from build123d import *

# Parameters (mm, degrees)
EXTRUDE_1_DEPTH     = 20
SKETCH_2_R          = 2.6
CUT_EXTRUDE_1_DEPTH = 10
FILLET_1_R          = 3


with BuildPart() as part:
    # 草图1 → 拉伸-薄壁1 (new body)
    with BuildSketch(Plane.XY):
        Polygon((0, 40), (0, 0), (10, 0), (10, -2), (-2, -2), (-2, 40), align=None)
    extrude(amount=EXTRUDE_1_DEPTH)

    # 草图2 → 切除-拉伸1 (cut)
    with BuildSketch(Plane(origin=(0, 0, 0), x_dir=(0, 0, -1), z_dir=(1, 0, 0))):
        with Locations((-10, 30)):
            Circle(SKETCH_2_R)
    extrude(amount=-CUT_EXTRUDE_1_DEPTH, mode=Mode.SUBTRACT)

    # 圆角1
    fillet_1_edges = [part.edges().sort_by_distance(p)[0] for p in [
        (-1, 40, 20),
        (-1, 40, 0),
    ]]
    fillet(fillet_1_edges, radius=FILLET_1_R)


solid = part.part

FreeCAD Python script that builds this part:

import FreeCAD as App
import Part
import Sketcher
from FreeCAD import Vector


def edges_at(feature, points):
    """Names of the edges that pass closest to the given points."""
    edges = feature.Shape.Edges
    near = lambda p: min(range(len(edges)), key=lambda i: edges[i].distToShape(Part.Vertex(*p))[0])
    return sorted({f"Edge{near(p) + 1}" for p in points})

doc = App.newDocument("Part")
body = doc.addObject("PartDesign::Body", "Body")

sketch1 = doc.addObject("Sketcher::SketchObject", "Sketch")
body.addObject(sketch1)
sketch1.AttachmentSupport = (doc.XY_Plane, [""])
sketch1.MapMode = "FlatFace"
sketch1.addGeometry([
    Part.LineSegment(Vector(0, 0, 0), Vector(0, 40, 0)),
    Part.LineSegment(Vector(0, 40, 0), Vector(-2, 40, 0)),
    Part.LineSegment(Vector(-2, 40, 0), Vector(-2, -2, 0)),
    Part.LineSegment(Vector(-2, -2, 0), Vector(10, -2, 0)),
    Part.LineSegment(Vector(10, -2, 0), Vector(10, 0, 0)),
    Part.LineSegment(Vector(10, 0, 0), Vector(0, 0, 0)),
], False)
sketch1.addConstraint([
    Sketcher.Constraint("Coincident", 0, 2, 1, 1),
    Sketcher.Constraint("Coincident", 1, 2, 2, 1),
    Sketcher.Constraint("Coincident", 2, 2, 3, 1),
    Sketcher.Constraint("Coincident", 3, 2, 4, 1),
    Sketcher.Constraint("Coincident", 4, 2, 5, 1),
    Sketcher.Constraint("Coincident", 5, 2, 0, 1),
    Sketcher.Constraint("Vertical", 0),
    Sketcher.Constraint("Horizontal", 1),
    Sketcher.Constraint("Vertical", 2),
    Sketcher.Constraint("Horizontal", 3),
    Sketcher.Constraint("Vertical", 4),
    Sketcher.Constraint("Horizontal", 5),
    Sketcher.Constraint("Coincident", 5, 2, -1, 1),
    Sketcher.Constraint("Equal", 1, 4),
    Sketcher.Constraint("DistanceX", 1, 2, 1, 1, 2.0),
    Sketcher.Constraint("DistanceX", 3, 1, 3, 2, 12.0),
    Sketcher.Constraint("DistanceY", 0, 1, 0, 2, 40.0),
])
pad1 = doc.addObject("PartDesign::Pad", "Pad")
body.addObject(pad1)
pad1.Profile = sketch1
pad1.Length = 20

sketch2 = doc.addObject("Sketcher::SketchObject", "Sketch001")
body.addObject(sketch2)
sketch2.AttachmentSupport = (doc.YZ_Plane, [""])
sketch2.MapMode = "FlatFace"
sketch2.addGeometry(Part.Circle(Vector(30, 10, 0), Vector(0, 0, 1), 2.6), False)
sketch2.addConstraint([
    Sketcher.Constraint("Diameter", 0, 5.2),
    Sketcher.Constraint("DistanceX", -1, 1, 0, 3, 30.0),
    Sketcher.Constraint("DistanceY", -1, 1, 0, 3, 10.0),
])
pocket1 = doc.addObject("PartDesign::Pocket", "Pocket")
body.addObject(pocket1)
pocket1.Profile = sketch2
pocket1.Length = 10
doc.recompute()

fillet = doc.addObject("PartDesign::Fillet", "Fillet")
body.addObject(fillet)
fillet.Base = (pocket1, edges_at(pocket1, [(-1, 40, 20), (-1, 40, 0)]))
fillet.Radius = 3

doc.recompute()
